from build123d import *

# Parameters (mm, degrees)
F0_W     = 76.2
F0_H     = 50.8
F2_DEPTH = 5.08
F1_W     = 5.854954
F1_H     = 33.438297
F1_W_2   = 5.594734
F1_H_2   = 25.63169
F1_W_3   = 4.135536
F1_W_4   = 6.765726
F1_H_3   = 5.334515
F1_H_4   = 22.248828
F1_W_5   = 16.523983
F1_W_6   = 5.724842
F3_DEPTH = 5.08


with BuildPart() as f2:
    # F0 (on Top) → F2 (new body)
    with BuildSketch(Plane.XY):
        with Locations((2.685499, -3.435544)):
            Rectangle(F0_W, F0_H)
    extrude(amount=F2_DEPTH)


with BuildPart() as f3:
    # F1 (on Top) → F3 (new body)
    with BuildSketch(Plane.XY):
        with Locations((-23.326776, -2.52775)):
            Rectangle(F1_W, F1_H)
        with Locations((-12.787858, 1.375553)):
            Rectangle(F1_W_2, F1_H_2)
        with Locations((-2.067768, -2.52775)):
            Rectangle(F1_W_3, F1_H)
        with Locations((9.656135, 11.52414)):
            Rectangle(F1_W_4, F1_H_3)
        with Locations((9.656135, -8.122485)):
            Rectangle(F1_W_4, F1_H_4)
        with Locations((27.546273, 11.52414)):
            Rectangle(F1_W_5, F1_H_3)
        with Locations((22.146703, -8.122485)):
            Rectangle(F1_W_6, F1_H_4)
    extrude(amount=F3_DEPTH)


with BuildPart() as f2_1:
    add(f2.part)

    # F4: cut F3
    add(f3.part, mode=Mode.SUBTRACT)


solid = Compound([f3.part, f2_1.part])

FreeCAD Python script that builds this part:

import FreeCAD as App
import Part
import Sketcher
Q = App.Units.Quantity

doc = App.newDocument("Part")
body = doc.addObject("PartDesign::Body", "Body")

# Sketch on XY plane
sketch1 = body.newObject("Sketcher::SketchObject", "Sketch")
sketch1.AttachmentSupport = (doc.getObject("XY_Plane"), [""])
sketch1.MapMode = "FlatFace"
sketch1.addGeometry([
    Part.LineSegment(App.Vector(-35, 22, 0), App.Vector(-35, -29, 0)),
    Part.LineSegment(App.Vector(-35, -29, 0), App.Vector(41, -29, 0)),
    Part.LineSegment(App.Vector(41, -29, 0), App.Vector(41, 22, 0)),
    Part.LineSegment(App.Vector(41, 22, 0), App.Vector(-35, 22, 0)),
], False)
sketch1.addConstraint([
    Sketcher.Constraint("Coincident", 0, 2, 1, 1),
    Sketcher.Constraint("Coincident", 1, 2, 2, 1),
    Sketcher.Constraint("Coincident", 2, 2, 3, 1),
    Sketcher.Constraint("Coincident", 3, 2, 0, 1),
    Sketcher.Constraint("Vertical", 0),
    Sketcher.Constraint("Horizontal", 1),
    Sketcher.Constraint("Vertical", 2),
    Sketcher.Constraint("Horizontal", 3),
    Sketcher.Constraint("DistanceX", 1, 1, 1, 2, Q("3 in")),
    Sketcher.Constraint("DistanceY", 0, 2, 0, 1, Q("2 in")),
    Sketcher.Constraint("DistanceX", 0, 2, -1, 1, 35.414501),
    Sketcher.Constraint("DistanceY", 0, 2, -1, 1, 28.835544),
])
pad1 = body.newObject("PartDesign::Pad", "Pad")
pad1.Profile = sketch1
pad1.Length = Q("0.2 in")
body2 = doc.addObject("PartDesign::Body", "Body001")
body2.AllowCompound = True

# Sketch on XY plane
sketch2 = body2.newObject("Sketcher::SketchObject", "Sketch001")
sketch2.AttachmentSupport = (doc.getObject("XY_Plane001"), [""])
sketch2.MapMode = "FlatFace"
sketch2.addGeometry([
    Part.LineSegment(App.Vector(-26.3, 14.2, 0), App.Vector(-26.3, -19.2, 0)),  # 0
    Part.LineSegment(App.Vector(-26.3, -19.2, 0), App.Vector(-20.4, -19.2, 0)),  # 1
    Part.LineSegment(App.Vector(-20.4, -19.2, 0), App.Vector(-20.4, 14.2, 0)),  # 2
    Part.LineSegment(App.Vector(-20.4, 14.2, 0), App.Vector(-26.3, 14.2, 0)),  # 3
    Part.LineSegment(App.Vector(-15.6, 14.2, 0), App.Vector(-15.6, -11.4, 0)),  # 4
    Part.LineSegment(App.Vector(-15.6, -11.4, 0), App.Vector(-10, -11.4, 0)),  # 5
    Part.LineSegment(App.Vector(-10, -11.4, 0), App.Vector(-10, 14.2, 0)),  # 6
    Part.LineSegment(App.Vector(-10, 14.2, 0), App.Vector(-15.6, 14.2, 0)),  # 7
    Part.LineSegment(App.Vector(-4.1, 14.2, 0), App.Vector(-4.1, -19.2, 0)),  # 8
    Part.LineSegment(App.Vector(-4.1, -19.2, 0), App.Vector(0, -19.2, 0)),  # 9
    Part.LineSegment(App.Vector(0, -19.2, 0), App.Vector(0, 14.2, 0)),  # 10
    Part.LineSegment(App.Vector(0, 14.2, 0), App.Vector(-4.1, 14.2, 0)),  # 11
    Part.LineSegment(App.Vector(6.3, 14.2, 0), App.Vector(6.3, 8.9, 0)),  # 12
    Part.LineSegment(App.Vector(6.3, 8.9, 0), App.Vector(13, 8.9, 0)),  # 13
    Part.LineSegment(App.Vector(13, 8.9, 0), App.Vector(13, 14.2, 0)),  # 14
    Part.LineSegment(App.Vector(13, 14.2, 0), App.Vector(6.3, 14.2, 0)),  # 15
    Part.LineSegment(App.Vector(6.3, 3, 0), App.Vector(6.3, -19.2, 0)),  # 16
    Part.LineSegment(App.Vector(6.3, -19.2, 0), App.Vector(13, -19.2, 0)),  # 17
    Part.LineSegment(App.Vector(13, -19.2, 0), App.Vector(13, 3, 0)),  # 18
    Part.LineSegment(App.Vector(13, 3, 0), App.Vector(6.3, 3, 0)),  # 19
    Part.LineSegment(App.Vector(19.3, 14.2, 0), App.Vector(19.3, 8.9, 0)),  # 20
    Part.LineSegment(App.Vector(19.3, 8.9, 0), App.Vector(35.8, 8.9, 0)),  # 21
    Part.LineSegment(App.Vector(35.8, 8.9, 0), App.Vector(35.8, 14.2, 0)),  # 22
    Part.LineSegment(App.Vector(35.8, 14.2, 0), App.Vector(19.3, 14.2, 0)),  # 23
    Part.LineSegment(App.Vector(19.3, 3, 0), App.Vector(19.3, -19.2, 0)),  # 24
    Part.LineSegment(App.Vector(19.3, -19.2, 0), App.Vector(25, -19.2, 0)),  # 25
    Part.LineSegment(App.Vector(25, -19.2, 0), App.Vector(25, 3, 0)),  # 26
    Part.LineSegment(App.Vector(25, 3, 0), App.Vector(19.3, 3, 0)),  # 27
], False)
sketch2.addConstraint([
    Sketcher.Constraint("Coincident", 0, 2, 1, 1),
    Sketcher.Constraint("Coincident", 1, 2, 2, 1),
    Sketcher.Constraint("Coincident", 2, 2, 3, 1),
    Sketcher.Constraint("Coincident", 3, 2, 0, 1),
    Sketcher.Constraint("Coincident", 4, 2, 5, 1),
    Sketcher.Constraint("Coincident", 5, 2, 6, 1),
    Sketcher.Constraint("Coincident", 6, 2, 7, 1),
    Sketcher.Constraint("Coincident", 7, 2, 4, 1),
    Sketcher.Constraint("Coincident", 8, 2, 9, 1),
    Sketcher.Constraint("Coincident", 9, 2, 10, 1),
    Sketcher.Constraint("Coincident", 10, 2, 11, 1),
    Sketcher.Constraint("Coincident", 11, 2, 8, 1),
    Sketcher.Constraint("Coincident", 12, 2, 13, 1),
    Sketcher.Constraint("Coincident", 13, 2, 14, 1),
    Sketcher.Constraint("Coincident", 14, 2, 15, 1),
    Sketcher.Constraint("Coincident", 15, 2, 12, 1),
    Sketcher.Constraint("Coincident", 16, 2, 17, 1),
    Sketcher.Constraint("Coincident", 17, 2, 18, 1),
    Sketcher.Constraint("Coincident", 18, 2, 19, 1),
    Sketcher.Constraint("Coincident", 19, 2, 16, 1),
    Sketcher.Constraint("Coincident", 20, 2, 21, 1),
    Sketcher.Constraint("Coincident", 21, 2, 22, 1),
    Sketcher.Constraint("Coincident", 22, 2, 23, 1),
    Sketcher.Constraint("Coincident", 23, 2, 20, 1),
    Sketcher.Constraint("Coincident", 24, 2, 25, 1),
    Sketcher.Constraint("Coincident", 25, 2, 26, 1),
    Sketcher.Constraint("Coincident", 26, 2, 27, 1),
    Sketcher.Constraint("Coincident", 27, 2, 24, 1),
    Sketcher.Constraint("Vertical", 0),
    Sketcher.Constraint("Horizontal", 1),
    Sketcher.Constraint("Vertical", 2),
    Sketcher.Constraint("Horizontal", 3),
    Sketcher.Constraint("Vertical", 4),
    Sketcher.Constraint("Horizontal", 5),
    Sketcher.Constraint("Vertical", 6),
    Sketcher.Constraint("Horizontal", 7),
    Sketcher.Constraint("Vertical", 8),
    Sketcher.Constraint("Horizontal", 9),
    Sketcher.Constraint("Vertical", 10),
    Sketcher.Constraint("Horizontal", 11),
    Sketcher.Constraint("Vertical", 12),
    Sketcher.Constraint("Horizontal", 13),
    Sketcher.Constraint("Vertical", 14),
    Sketcher.Constraint("Horizontal", 15),
    Sketcher.Constraint("Vertical", 16),
    Sketcher.Constraint("Horizontal", 17),
    Sketcher.Constraint("Vertical", 18),
    Sketcher.Constraint("Horizontal", 19),
    Sketcher.Constraint("Vertical", 20),
    Sketcher.Constraint("Horizontal", 21),
    Sketcher.Constraint("Vertical", 22),
    Sketcher.Constraint("Horizontal", 23),
    Sketcher.Constraint("Vertical", 24),
    Sketcher.Constraint("Horizontal", 25),
    Sketcher.Constraint("Vertical", 26),
    Sketcher.Constraint("Horizontal", 27),
    Sketcher.Constraint("PointOnObject", 9, 2, -2),
    Sketcher.Constraint("Horizontal", 3, 2, 6, 2),
    Sketcher.Constraint("Horizontal", 1, 2, 8, 2),
    Sketcher.Constraint("Horizontal", 7, 2, 10, 2),
    Sketcher.Constraint("Horizontal", 11, 2, 14, 2),
    Sketcher.Constraint("Horizontal", 9, 2, 16, 2),
    Sketcher.Constraint("Horizontal", 13, 2, 20, 2),
    Sketcher.Constraint("Horizontal", 15, 2, 22, 2),
    Sketcher.Constraint("Horizontal", 17, 2, 24, 2),
    Sketcher.Constraint("Horizontal", 19, 2, 26, 2),
    Sketcher.Constraint("Vertical", 15, 2, 16, 2),
    Sketcher.Constraint("Vertical", 14, 2, 17, 2),
    Sketcher.Constraint("Vertical", 23, 2, 24, 2),
    Sketcher.Constraint("DistanceX", 25, 1, 25, 2, 5.724842),
    Sketcher.Constraint("DistanceY", 4, 2, 4, 1, 25.63169),
    Sketcher.Constraint("DistanceY", 0, 2, -1, 1, 19.246899),
    Sketcher.Constraint("DistanceX", 1, 2, -1, 1, 20.399299),
    Sketcher.Constraint("DistanceY", -1, 1, 2, 2, 14.191399),
    Sketcher.Constraint("DistanceX", 1, 1, 1, 2, 5.854954),
    Sketcher.Constraint("DistanceX", 5, 1, 5, 2, 5.594734),
    Sketcher.Constraint("DistanceX", 9, 1, 9, 2, 4.135536),
    Sketcher.Constraint("DistanceX", 13, 1, 13, 2, 6.765726),
    Sketcher.Constraint("DistanceX", 21, 1, 21, 2, 16.523983),
    Sketcher.Constraint("DistanceY", 12, 2, 12, 1, 5.334515),
    Sketcher.Constraint("DistanceY", 16, 2, 16, 1, 22.248828),
    Sketcher.Constraint("DistanceX", 5, 2, -1, 1, 9.990491),
    Sketcher.Constraint("DistanceX", -1, 1, 20, 2, 19.284281),
    Sketcher.Constraint("DistanceX", 6, 2, 13, 2, 23.029489),
])
pad2 = body2.newObject("PartDesign::Pad", "Pad001")
pad2.Profile = sketch2
pad2.Length = Q("0.2 in")
doc.recompute()

body3 = doc.addObject("PartDesign::Body", "Body002")
body3.BaseFeature = body2
boolean = body.newObject("PartDesign::Boolean", "Boolean")
boolean.Type = "Cut"
boolean.addObjects([body3])
doc.recompute()

doc.recompute()
